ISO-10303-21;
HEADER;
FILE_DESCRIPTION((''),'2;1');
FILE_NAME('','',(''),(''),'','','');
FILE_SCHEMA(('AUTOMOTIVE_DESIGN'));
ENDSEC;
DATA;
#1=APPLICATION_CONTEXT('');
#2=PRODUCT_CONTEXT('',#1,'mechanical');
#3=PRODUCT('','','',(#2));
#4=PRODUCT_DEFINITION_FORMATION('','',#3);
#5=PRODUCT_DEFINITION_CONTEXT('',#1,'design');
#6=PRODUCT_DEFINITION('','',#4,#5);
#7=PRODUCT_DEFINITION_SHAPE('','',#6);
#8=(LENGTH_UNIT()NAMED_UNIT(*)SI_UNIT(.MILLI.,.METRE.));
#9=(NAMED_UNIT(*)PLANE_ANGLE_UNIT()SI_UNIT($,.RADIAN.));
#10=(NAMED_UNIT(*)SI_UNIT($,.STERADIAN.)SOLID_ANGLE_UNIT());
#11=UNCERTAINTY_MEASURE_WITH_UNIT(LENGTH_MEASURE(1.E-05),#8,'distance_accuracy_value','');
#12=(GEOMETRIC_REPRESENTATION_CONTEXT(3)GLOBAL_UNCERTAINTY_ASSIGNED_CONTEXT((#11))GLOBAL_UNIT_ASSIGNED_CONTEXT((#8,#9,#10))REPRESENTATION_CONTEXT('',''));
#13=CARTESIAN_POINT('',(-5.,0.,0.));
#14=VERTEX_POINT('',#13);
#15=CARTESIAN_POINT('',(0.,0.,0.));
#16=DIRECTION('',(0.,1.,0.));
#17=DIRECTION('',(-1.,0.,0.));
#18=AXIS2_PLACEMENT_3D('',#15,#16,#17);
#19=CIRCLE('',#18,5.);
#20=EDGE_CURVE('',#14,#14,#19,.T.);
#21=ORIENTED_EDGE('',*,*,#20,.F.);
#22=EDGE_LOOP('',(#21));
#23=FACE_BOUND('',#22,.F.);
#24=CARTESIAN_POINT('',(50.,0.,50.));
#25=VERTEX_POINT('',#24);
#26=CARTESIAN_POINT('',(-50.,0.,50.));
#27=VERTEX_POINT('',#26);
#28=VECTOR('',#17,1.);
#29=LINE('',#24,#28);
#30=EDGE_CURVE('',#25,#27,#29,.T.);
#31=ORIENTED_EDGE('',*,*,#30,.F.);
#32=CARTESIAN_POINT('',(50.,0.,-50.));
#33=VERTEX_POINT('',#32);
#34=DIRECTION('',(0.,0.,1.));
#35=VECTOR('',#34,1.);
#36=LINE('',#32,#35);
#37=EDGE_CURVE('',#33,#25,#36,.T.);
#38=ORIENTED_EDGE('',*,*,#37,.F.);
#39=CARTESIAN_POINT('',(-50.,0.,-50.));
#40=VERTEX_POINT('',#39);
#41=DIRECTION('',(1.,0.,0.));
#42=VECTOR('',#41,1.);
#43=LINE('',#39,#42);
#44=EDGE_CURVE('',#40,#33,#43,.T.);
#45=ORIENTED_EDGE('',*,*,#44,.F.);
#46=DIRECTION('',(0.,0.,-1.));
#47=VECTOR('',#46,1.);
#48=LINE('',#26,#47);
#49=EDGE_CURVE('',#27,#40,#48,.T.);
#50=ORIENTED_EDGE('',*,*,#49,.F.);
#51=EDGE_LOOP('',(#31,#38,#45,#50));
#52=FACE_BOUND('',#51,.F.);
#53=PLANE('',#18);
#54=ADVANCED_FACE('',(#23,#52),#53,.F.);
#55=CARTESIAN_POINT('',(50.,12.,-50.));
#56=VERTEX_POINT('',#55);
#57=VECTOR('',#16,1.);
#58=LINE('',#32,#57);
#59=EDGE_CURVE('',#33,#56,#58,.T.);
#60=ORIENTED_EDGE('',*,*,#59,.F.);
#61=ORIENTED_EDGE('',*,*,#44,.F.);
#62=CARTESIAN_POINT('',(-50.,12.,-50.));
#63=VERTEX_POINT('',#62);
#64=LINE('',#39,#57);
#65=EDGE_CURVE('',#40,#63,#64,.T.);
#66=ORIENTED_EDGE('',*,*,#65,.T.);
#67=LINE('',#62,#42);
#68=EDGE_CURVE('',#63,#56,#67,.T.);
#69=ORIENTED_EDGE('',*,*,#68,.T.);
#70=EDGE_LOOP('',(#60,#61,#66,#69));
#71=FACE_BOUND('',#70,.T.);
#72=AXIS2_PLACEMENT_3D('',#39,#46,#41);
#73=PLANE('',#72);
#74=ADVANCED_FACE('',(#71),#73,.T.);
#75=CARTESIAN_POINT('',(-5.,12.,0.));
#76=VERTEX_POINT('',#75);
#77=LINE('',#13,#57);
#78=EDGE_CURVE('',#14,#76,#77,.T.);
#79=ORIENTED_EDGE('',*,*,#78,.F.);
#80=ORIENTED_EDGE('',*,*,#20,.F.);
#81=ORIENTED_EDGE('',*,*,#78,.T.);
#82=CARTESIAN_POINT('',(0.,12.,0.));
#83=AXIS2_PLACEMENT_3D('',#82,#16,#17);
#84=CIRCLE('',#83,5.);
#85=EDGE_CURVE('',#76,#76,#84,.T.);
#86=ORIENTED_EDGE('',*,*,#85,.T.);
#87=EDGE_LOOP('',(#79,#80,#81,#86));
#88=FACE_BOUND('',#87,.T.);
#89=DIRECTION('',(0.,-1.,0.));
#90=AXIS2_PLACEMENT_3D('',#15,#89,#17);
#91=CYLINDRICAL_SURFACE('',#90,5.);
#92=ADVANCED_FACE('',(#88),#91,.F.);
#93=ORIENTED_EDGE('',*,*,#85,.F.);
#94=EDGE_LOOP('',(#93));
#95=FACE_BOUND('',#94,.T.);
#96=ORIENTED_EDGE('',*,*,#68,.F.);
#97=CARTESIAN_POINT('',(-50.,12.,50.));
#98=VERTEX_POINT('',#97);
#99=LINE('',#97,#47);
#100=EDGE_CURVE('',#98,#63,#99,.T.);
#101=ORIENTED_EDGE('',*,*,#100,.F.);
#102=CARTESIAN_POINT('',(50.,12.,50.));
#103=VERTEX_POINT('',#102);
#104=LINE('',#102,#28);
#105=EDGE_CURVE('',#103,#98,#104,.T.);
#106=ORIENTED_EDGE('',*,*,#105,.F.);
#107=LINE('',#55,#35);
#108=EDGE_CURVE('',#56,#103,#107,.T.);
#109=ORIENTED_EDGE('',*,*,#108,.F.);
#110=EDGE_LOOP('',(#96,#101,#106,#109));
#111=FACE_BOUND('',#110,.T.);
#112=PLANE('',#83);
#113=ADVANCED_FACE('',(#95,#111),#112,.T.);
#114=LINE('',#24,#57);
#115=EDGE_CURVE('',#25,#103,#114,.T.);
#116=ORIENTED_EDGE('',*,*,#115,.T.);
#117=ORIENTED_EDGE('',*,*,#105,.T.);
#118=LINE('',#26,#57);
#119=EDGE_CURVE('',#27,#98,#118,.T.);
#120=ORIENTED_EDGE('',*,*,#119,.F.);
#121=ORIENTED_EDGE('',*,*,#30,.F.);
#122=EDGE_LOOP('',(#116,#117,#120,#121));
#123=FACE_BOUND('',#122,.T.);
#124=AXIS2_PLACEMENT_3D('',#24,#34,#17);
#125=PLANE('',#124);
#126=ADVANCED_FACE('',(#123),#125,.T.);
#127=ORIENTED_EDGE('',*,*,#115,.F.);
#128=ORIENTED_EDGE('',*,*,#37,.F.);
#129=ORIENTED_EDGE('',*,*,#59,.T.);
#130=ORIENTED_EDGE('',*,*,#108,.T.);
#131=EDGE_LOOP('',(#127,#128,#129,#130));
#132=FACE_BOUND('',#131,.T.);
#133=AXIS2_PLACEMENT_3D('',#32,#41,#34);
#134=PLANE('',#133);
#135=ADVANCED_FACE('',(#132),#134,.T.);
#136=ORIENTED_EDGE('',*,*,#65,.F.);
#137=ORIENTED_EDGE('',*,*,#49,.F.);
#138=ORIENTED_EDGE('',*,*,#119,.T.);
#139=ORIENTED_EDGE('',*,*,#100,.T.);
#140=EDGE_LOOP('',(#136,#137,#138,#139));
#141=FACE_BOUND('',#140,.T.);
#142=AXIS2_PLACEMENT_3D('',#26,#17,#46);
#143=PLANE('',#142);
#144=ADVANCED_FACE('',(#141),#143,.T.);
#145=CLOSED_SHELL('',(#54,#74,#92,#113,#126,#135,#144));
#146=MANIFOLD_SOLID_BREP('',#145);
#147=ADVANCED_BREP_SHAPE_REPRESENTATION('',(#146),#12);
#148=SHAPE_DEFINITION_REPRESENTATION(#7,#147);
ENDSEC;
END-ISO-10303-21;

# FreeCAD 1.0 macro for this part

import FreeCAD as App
import Part
import Sketcher
from FreeCAD import Vector
Q = App.Units.Quantity


def add_polygon(sketch, points):
    """Adds a closed chain of lines whose ends are joined by coincident constraints."""
    first, n = sketch.GeometryCount, len(points)
    for a, b in zip(points, points[1:] + points[:1]):
        sketch.addGeometry(Part.LineSegment(App.Vector(*a, 0), App.Vector(*b, 0)), False)
    for i in range(n):
        sketch.addConstraint(Sketcher.Constraint("Coincident", first + i, 2, first + (i + 1) % n, 1))

doc = App.newDocument("Part")
body = doc.addObject("PartDesign::Body", "Body")

# Sketch on XZ plane
sketch1 = body.newObject("Sketcher::SketchObject", "Sketch")
sketch1.AttachmentSupport = (doc.getObject("XZ_Plane"), [""])
sketch1.MapMode = "FlatFace"
add_polygon(sketch1, [(-50, 50), (50, 50), (50, -50), (-50, -50)])  # lines 0-3
sketch1.addGeometry(Part.Circle(Vector(0, 0, 0), Vector(0, 0, 1), 5), False)  # 4
sketch1.addConstraint([
    Sketcher.Constraint("Horizontal", 0),
    Sketcher.Constraint("Vertical", 1),
    Sketcher.Constraint("Horizontal", 2),
    Sketcher.Constraint("Vertical", 3),
    Sketcher.Constraint("Coincident", 4, 3, -1, 1),
    Sketcher.Constraint("Symmetric", 0, 2, 2, 2, -1, 1),
    Sketcher.Constraint("Equal", 2, 1),
    Sketcher.Constraint("Diameter", 4, Q("10 mm")),
    Sketcher.Constraint("DistanceX", 0, 1, 0, 2, Q("100 mm")),
])
pad1 = body.newObject("PartDesign::Pad", "Pad")
pad1.Profile = sketch1
pad1.Length = 12
pad1.Reversed = True

doc.recompute()
